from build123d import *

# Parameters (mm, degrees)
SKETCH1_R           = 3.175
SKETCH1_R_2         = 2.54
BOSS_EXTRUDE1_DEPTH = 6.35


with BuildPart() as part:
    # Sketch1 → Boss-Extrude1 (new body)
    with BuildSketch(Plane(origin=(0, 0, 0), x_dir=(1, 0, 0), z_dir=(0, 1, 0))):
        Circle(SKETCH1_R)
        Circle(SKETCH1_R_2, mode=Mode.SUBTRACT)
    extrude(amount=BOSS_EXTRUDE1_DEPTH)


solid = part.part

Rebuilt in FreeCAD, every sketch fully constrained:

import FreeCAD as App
import Part
import Sketcher

V = App.Vector
Q = App.Units.Quantity

doc = App.newDocument("Part")
body = doc.addObject("PartDesign::Body", "Body")

sketch1 = doc.addObject("Sketcher::SketchObject", "Sketch")
body.addObject(sketch1)
sketch1.AttachmentSupport = (doc.XZ_Plane, [""])
sketch1.MapMode = "FlatFace"
sketch1.addGeometry([
    Part.Circle(V(0, 0, 0), V(0, 0, 1), 3.175),
    Part.Circle(V(0, 0, 0), V(0, 0, 1), 2.54),
], False)
sketch1.addConstraint([
    Sketcher.Constraint("Coincident", 0, 3, -1, 1),
    Sketcher.Constraint("Coincident", 1, 3, -1, 1),
    Sketcher.Constraint("Diameter", 1, Q("0.2 in")),
    Sketcher.Constraint("Diameter", 0, Q("0.25 in")),
])
pad1 = doc.addObject("PartDesign::Pad", "Pad")
body.addObject(pad1)
pad1.Profile = sketch1
pad1.Length = Q("0.25 in")
pad1.Reversed = True

doc.recompute()
